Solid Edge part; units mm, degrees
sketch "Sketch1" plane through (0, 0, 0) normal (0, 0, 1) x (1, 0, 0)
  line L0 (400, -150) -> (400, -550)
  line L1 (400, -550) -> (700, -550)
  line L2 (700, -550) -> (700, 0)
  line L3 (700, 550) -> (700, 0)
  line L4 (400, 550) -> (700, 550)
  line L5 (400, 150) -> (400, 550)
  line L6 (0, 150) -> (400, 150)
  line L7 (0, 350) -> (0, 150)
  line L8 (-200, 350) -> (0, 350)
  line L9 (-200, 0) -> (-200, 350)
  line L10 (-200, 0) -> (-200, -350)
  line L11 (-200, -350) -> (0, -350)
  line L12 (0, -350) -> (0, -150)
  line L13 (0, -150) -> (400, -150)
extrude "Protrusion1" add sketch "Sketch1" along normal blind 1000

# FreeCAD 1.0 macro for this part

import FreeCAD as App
import Part
import Sketcher
Q = App.Units.Quantity


def add_polygon(sketch, points):
    """Adds a closed chain of lines whose ends are joined by coincident constraints."""
    first, n = sketch.GeometryCount, len(points)
    for a, b in zip(points, points[1:] + points[:1]):
        sketch.addGeometry(Part.LineSegment(App.Vector(*a, 0), App.Vector(*b, 0)), False)
    for i in range(n):
        sketch.addConstraint(Sketcher.Constraint("Coincident", first + i, 2, first + (i + 1) % n, 1))

doc = App.newDocument("Part")
body = doc.addObject("PartDesign::Body", "Body")

sketch1 = doc.addObject("Sketcher::SketchObject", "Sketch")
body.addObject(sketch1)
sketch1.AttachmentSupport = (doc.XY_Plane, [""])
sketch1.MapMode = "FlatFace"
add_polygon(sketch1, [(0, -150), (400, -150), (400, -550), (700, -550), (700, 550), (400, 550), (400, 150), (0, 150), (0, 350), (-200, 350), (-200, -350), (0, -350)])
sketch1.addConstraint([
    Sketcher.Constraint("Horizontal", 0),
    Sketcher.Constraint("Vertical", 1),
    Sketcher.Constraint("Horizontal", 2),
    Sketcher.Constraint("Vertical", 3),
    Sketcher.Constraint("Horizontal", 4),
    Sketcher.Constraint("Vertical", 5),
    Sketcher.Constraint("Horizontal", 6),
    Sketcher.Constraint("Vertical", 7),
    Sketcher.Constraint("Horizontal", 8),
    Sketcher.Constraint("Vertical", 9),
    Sketcher.Constraint("Horizontal", 10),
    Sketcher.Constraint("Vertical", 11),
    Sketcher.Constraint("Symmetric", 7, 2, 10, 2, -1, 1),
    Sketcher.Constraint("Symmetric", 1, 2, 4, 2, -1),
    Sketcher.Constraint("Symmetric", 6, 2, 11, 2, -1),
    Sketcher.Constraint("Equal", 6, 1),
    Sketcher.Constraint("Equal", 10, 7),
    Sketcher.Constraint("DistanceX", 0, 1, 0, 2, Q("400 mm")),
    Sketcher.Constraint("DistanceX", 2, 1, 2, 2, Q("300 mm")),
    Sketcher.Constraint("DistanceX", 8, 2, 8, 1, Q("200 mm")),
    Sketcher.Constraint("DistanceY", 3, 1, 3, 2, Q("1100 mm")),
])
pad1 = doc.addObject("PartDesign::Pad", "Pad")
body.addObject(pad1)
pad1.Profile = sketch1
pad1.Length = 1000

doc.recompute()
